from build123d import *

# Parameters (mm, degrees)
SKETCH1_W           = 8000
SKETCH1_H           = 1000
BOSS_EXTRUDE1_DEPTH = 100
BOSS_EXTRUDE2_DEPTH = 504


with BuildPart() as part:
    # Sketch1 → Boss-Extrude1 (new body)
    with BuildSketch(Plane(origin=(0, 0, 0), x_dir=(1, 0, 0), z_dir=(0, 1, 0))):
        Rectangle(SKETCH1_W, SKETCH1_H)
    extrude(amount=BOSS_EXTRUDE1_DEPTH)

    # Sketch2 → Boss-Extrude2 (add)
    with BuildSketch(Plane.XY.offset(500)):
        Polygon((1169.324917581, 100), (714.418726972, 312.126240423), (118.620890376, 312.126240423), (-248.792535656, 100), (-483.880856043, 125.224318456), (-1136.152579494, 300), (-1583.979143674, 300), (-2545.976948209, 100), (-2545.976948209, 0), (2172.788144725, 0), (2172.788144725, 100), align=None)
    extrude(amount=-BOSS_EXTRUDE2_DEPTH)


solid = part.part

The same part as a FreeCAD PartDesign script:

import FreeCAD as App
import Part
import Sketcher

V = App.Vector
Q = App.Units.Quantity


def add_polygon(sketch, points):
    """Adds a closed chain of lines whose ends are joined by coincident constraints."""
    first, n = sketch.GeometryCount, len(points)
    for a, b in zip(points, points[1:] + points[:1]):
        sketch.addGeometry(Part.LineSegment(App.Vector(*a, 0), App.Vector(*b, 0)), False)
    for i in range(n):
        sketch.addConstraint(Sketcher.Constraint("Coincident", first + i, 2, first + (i + 1) % n, 1))

doc = App.newDocument("Part")
body = doc.addObject("PartDesign::Body", "Body")

# Sketch on XZ plane
sketch1 = body.newObject("Sketcher::SketchObject", "Sketch")
sketch1.AttachmentSupport = (doc.getObject("XZ_Plane"), [""])
sketch1.MapMode = "FlatFace"
add_polygon(sketch1, [(-4000, -500), (-4000, 500), (4000, 500), (4000, -500)])  # lines 0-3
sketch1.addConstraint([
    Sketcher.Constraint("Vertical", 0),
    Sketcher.Constraint("Horizontal", 1),
    Sketcher.Constraint("Vertical", 2),
    Sketcher.Constraint("Horizontal", 3),
    Sketcher.Constraint("Symmetric", 0, 2, 2, 2, -1, 1),
    Sketcher.Constraint("DistanceX", 1, 1, 1, 2, Q("8000 mm")),
    Sketcher.Constraint("DistanceY", 0, 1, 0, 2, Q("1000 mm")),
])
pad1 = body.newObject("PartDesign::Pad", "Pad")
pad1.Profile = sketch1
pad1.Length = 100
pad1.Reversed = True

# Sketch on XY plane
sketch2 = body.newObject("Sketcher::SketchObject", "Sketch001")
sketch2.AttachmentSupport = (doc.getObject("XY_Plane"), [""])
sketch2.MapMode = "FlatFace"
sketch2.AttachmentOffset = App.Placement(V(0, 0, 500), App.Rotation())
add_polygon(sketch2, [(1169, 100), (714, 312), (119, 312), (-249, 100), (-484, 125), (-1136, 300), (-1584, 300), (-2546, 100), (-2546, 0), (2173, 0), (2173, 100)])  # lines 0-10
sketch2.addConstraint([
    Sketcher.Constraint("Horizontal", 1),
    Sketcher.Constraint("Horizontal", 5),
    Sketcher.Constraint("Vertical", 7),
    Sketcher.Constraint("Horizontal", 8),
    Sketcher.Constraint("Vertical", 9),
    Sketcher.Constraint("Horizontal", 10),
    Sketcher.Constraint("PointOnObject", 7, 2, -1),
    Sketcher.Constraint("Horizontal", 2, 2, 6, 2),
    Sketcher.Constraint("Horizontal", 6, 2, 9, 2),
    Sketcher.Constraint("DistanceY", 7, 2, 7, 1, Q("100 mm")),
    Sketcher.Constraint("Angle", 0, Q("155 deg")),
    Sketcher.Constraint("Angle", 2, Q("-150 deg")),
    Sketcher.Constraint("Angle", 4, Q("165 deg")),
    Sketcher.Constraint("DistanceY", -1, 1, 4, 2, Q("300 mm")),
    Sketcher.Constraint("DistanceX", 3, 2, 8, 2, Q("2656.669001 mm")),
    Sketcher.Constraint("Distance", 2, Q("424.252481 mm")),
    Sketcher.Constraint("Distance", 4, Q("675.281378 mm")),
    Sketcher.Constraint("Distance", 6, Q("982.56795 mm")),
    Sketcher.Constraint("DistanceX", 1, 2, 1, 1, Q("595.797837 mm")),
    Sketcher.Constraint("DistanceX", 5, 2, 5, 1, Q("447.826564 mm")),
    Sketcher.Constraint("DistanceX", 10, 2, 10, 1, Q("1003.463227 mm")),
    Sketcher.Constraint("DistanceX", -1, 1, 1, 2, Q("118.62089 mm")),
])
pad2 = body.newObject("PartDesign::Pad", "Pad001")
pad2.Profile = sketch2
pad2.Length = 504
pad2.Reversed = True

doc.recompute()
